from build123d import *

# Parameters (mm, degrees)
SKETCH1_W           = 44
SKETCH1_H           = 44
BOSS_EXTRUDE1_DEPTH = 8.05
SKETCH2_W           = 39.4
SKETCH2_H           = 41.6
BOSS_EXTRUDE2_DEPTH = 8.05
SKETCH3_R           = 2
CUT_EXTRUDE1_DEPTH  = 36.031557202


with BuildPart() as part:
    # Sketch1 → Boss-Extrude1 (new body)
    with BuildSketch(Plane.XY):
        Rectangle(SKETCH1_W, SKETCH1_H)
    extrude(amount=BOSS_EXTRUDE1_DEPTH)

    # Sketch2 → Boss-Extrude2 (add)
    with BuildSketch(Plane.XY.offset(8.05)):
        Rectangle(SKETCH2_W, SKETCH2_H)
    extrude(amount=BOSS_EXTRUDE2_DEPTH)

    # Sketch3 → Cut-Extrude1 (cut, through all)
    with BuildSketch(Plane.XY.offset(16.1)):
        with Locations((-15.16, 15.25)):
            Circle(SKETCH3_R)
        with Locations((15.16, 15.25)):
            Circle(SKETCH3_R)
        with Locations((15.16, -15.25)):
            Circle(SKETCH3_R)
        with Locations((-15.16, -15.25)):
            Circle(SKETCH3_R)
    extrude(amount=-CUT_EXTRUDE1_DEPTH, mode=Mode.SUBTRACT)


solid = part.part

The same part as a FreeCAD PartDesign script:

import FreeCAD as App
import Part
import Sketcher
from FreeCAD import Vector
Q = App.Units.Quantity


def add_polygon(sketch, points):
    """Adds a closed chain of lines whose ends are joined by coincident constraints."""
    first, n = sketch.GeometryCount, len(points)
    for a, b in zip(points, points[1:] + points[:1]):
        sketch.addGeometry(Part.LineSegment(App.Vector(*a, 0), App.Vector(*b, 0)), False)
    for i in range(n):
        sketch.addConstraint(Sketcher.Constraint("Coincident", first + i, 2, first + (i + 1) % n, 1))

doc = App.newDocument("Part")
body = doc.addObject("PartDesign::Body", "Body")

# Sketch on XY plane
sketch1 = body.newObject("Sketcher::SketchObject", "Sketch")
sketch1.AttachmentSupport = (doc.getObject("XY_Plane"), [""])
sketch1.MapMode = "FlatFace"
add_polygon(sketch1, [(-22, 22), (-22, -22), (22, -22), (22, 22)])  # lines 0-3
sketch1.addConstraint(Sketcher.Constraint("Vertical", 0))
sketch1.addConstraint(Sketcher.Constraint("Horizontal", 1))
sketch1.addConstraint(Sketcher.Constraint("Vertical", 2))
sketch1.addConstraint(Sketcher.Constraint("Horizontal", 3))
sketch1.addConstraint(Sketcher.Constraint("Symmetric", 0, 2, 2, 2, -1, 1))
sketch1.addConstraint(Sketcher.Constraint("Equal", 3, 0))
sketch1.addConstraint(Sketcher.Constraint("DistanceX", 1, 1, 1, 2, Q("44 mm")))
pad1 = body.newObject("PartDesign::Pad", "Pad")
pad1.Profile = sketch1
pad1.Length = 8.05

# Sketch on XY plane
sketch2 = body.newObject("Sketcher::SketchObject", "Sketch001")
sketch2.AttachmentSupport = (doc.getObject("XY_Plane"), [""])
sketch2.MapMode = "FlatFace"
sketch2.AttachmentOffset = App.Placement(Vector(0, 0, 8.05), App.Rotation())
add_polygon(sketch2, [(-20, 21), (-20, -21), (20, -21), (20, 21)])  # lines 0-3
sketch2.addConstraint(Sketcher.Constraint("Vertical", 0))
sketch2.addConstraint(Sketcher.Constraint("Horizontal", 1))
sketch2.addConstraint(Sketcher.Constraint("Vertical", 2))
sketch2.addConstraint(Sketcher.Constraint("Horizontal", 3))
sketch2.addConstraint(Sketcher.Constraint("Symmetric", 0, 2, 2, 2, -1, 1))
sketch2.addConstraint(Sketcher.Constraint("DistanceX", 1, 1, 1, 2, Q("39.4 mm")))
sketch2.addConstraint(Sketcher.Constraint("DistanceY", 0, 2, 0, 1, Q("41.6 mm")))
pad2 = body.newObject("PartDesign::Pad", "Pad001")
pad2.Profile = sketch2
pad2.Length = 8.05

# Sketch on XY plane
sketch3 = body.newObject("Sketcher::SketchObject", "Sketch002")
sketch3.AttachmentSupport = (doc.getObject("XY_Plane"), [""])
sketch3.MapMode = "FlatFace"
sketch3.AttachmentOffset = App.Placement(Vector(0, 0, 16.1), App.Rotation())
sketch3.addGeometry(Part.Circle(Vector(-15.2, 15.2, 0), Vector(0, 0, 1), 2), False)
sketch3.addGeometry(Part.Circle(Vector(15.2, 15.2, 0), Vector(0, 0, 1), 2), False)
sketch3.addGeometry(Part.Circle(Vector(15.2, -15.2, 0), Vector(0, 0, 1), 2), False)
sketch3.addGeometry(Part.Circle(Vector(-15.2, -15.2, 0), Vector(0, 0, 1), 2), False)
sketch3.addConstraint(Sketcher.Constraint("Equal", 0, 1))
sketch3.addConstraint(Sketcher.Constraint("Equal", 1, 2))
sketch3.addConstraint(Sketcher.Constraint("Equal", 2, 3))
sketch3.addConstraint(Sketcher.Constraint("Symmetric", 0, 3, 2, 3, -1, 1))
sketch3.addConstraint(Sketcher.Constraint("Symmetric", 1, 3, 3, 3, -1, 1))
sketch3.addConstraint(Sketcher.Constraint("Symmetric", 0, 3, 1, 3, -2))
sketch3.addConstraint(Sketcher.Constraint("Diameter", 0, Q("4 mm")))
sketch3.addConstraint(Sketcher.Constraint("DistanceY", 2, 3, 1, 3, Q("30.5 mm")))
sketch3.addConstraint(Sketcher.Constraint("DistanceX", 0, 3, -1, 1, Q("15.16 mm")))
pocket1 = body.newObject("PartDesign::Pocket", "Pocket")
pocket1.Profile = sketch3
pocket1.Type = "ThroughAll"

doc.recompute()
